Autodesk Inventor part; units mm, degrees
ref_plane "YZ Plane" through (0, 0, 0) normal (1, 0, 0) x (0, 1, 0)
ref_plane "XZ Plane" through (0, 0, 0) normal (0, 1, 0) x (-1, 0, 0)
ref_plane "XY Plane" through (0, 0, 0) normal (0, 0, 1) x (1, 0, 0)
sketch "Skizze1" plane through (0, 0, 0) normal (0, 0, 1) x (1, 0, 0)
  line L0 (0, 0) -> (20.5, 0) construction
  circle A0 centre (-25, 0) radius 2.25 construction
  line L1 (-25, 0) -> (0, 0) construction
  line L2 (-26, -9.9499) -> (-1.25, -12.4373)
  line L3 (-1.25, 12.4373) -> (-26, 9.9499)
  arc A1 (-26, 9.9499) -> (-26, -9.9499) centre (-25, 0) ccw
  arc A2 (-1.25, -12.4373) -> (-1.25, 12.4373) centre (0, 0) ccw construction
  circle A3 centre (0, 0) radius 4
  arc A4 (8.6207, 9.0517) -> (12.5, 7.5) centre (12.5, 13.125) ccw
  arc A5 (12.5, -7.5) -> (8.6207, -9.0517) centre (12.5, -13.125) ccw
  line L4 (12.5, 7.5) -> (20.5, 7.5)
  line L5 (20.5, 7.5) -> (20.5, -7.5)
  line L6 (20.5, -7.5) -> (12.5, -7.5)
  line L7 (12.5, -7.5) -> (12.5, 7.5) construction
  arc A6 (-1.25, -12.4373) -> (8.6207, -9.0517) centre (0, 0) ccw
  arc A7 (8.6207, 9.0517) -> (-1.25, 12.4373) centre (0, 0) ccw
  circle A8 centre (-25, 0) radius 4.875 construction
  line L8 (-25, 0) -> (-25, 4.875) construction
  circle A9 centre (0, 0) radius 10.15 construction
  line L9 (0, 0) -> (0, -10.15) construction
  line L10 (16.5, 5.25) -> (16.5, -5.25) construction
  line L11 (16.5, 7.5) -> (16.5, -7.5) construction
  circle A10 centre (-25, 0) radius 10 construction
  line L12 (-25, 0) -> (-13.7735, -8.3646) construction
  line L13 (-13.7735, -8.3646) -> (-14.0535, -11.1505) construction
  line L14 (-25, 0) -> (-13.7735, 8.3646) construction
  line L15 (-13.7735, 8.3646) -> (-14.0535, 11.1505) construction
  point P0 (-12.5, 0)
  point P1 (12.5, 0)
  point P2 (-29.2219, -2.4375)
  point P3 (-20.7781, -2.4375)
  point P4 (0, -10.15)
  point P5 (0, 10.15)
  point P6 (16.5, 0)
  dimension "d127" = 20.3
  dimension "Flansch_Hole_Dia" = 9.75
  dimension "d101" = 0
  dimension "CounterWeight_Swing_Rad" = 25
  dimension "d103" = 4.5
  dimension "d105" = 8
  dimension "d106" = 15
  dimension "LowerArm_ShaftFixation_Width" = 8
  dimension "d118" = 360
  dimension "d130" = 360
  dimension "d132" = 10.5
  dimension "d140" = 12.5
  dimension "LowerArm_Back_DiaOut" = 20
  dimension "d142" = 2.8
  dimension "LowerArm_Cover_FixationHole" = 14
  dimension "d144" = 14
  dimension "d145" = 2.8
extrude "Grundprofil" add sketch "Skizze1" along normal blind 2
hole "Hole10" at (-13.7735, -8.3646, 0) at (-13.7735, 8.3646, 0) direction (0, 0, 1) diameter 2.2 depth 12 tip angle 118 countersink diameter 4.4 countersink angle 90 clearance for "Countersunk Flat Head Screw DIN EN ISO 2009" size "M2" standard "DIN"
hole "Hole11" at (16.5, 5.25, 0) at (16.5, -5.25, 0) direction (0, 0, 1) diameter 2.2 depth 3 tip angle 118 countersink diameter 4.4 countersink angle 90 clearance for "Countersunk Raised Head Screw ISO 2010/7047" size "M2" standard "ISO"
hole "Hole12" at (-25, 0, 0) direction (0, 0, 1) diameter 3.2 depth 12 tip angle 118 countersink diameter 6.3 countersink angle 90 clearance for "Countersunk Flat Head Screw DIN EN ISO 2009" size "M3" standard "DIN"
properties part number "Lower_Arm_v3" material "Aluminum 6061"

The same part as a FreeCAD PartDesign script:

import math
import FreeCAD as App
import Part
import Sketcher

doc = App.newDocument("Part")
body = doc.addObject("PartDesign::Body", "Body")

# Sketch on XY plane
sketch1 = doc.addObject("Sketcher::SketchObject", "Sketch")
body.addObject(sketch1)
sketch1.AttachmentSupport = (doc.XY_Plane, [""])
sketch1.MapMode = "FlatFace"
sketch1.addGeometry(Part.ArcOfCircle(Part.Circle(App.Vector(-25, 0, 0), App.Vector(0, 0, 1), 10.000026), math.radians(95.739156), math.radians(264.260844)), False)
sketch1.addGeometry(Part.LineSegment(App.Vector(-26, -9.9499, 0), App.Vector(-1.25, -12.4373, 0)), False)
sketch1.addGeometry(Part.ArcOfCircle(Part.Circle(App.Vector(0, 0, 0), App.Vector(0, 0, 1), 12.49999), math.radians(-95.73919), math.radians(-46.39707)), False)
sketch1.addGeometry(Part.ArcOfCircle(Part.Circle(App.Vector(12.5, -13.125, 0), App.Vector(0, 0, 1), 5.625), math.radians(90), math.radians(133.602573)), False)
sketch1.addGeometry(Part.LineSegment(App.Vector(12.5, -7.5, 0), App.Vector(20.5, -7.5, 0)), False)
sketch1.addGeometry(Part.LineSegment(App.Vector(20.5, -7.5, 0), App.Vector(20.5, 7.5, 0)), False)
sketch1.addGeometry(Part.LineSegment(App.Vector(20.5, 7.5, 0), App.Vector(12.5, 7.5, 0)), False)
sketch1.addGeometry(Part.ArcOfCircle(Part.Circle(App.Vector(12.5, 13.125, 0), App.Vector(0, 0, 1), 5.62501), math.radians(-133.602573), math.radians(-90)), False)
sketch1.addGeometry(Part.ArcOfCircle(Part.Circle(App.Vector(0, 0, 0), App.Vector(0, 0, 1), 12.499957), math.radians(46.39707), math.radians(95.73919)), False)
sketch1.addGeometry(Part.LineSegment(App.Vector(-1.25, 12.4373, 0), App.Vector(-26, 9.9499, 0)), False)
sketch1.addGeometry(Part.Circle(App.Vector(0, 0, 0), App.Vector(0, 0, 1), 4), False)
sketch1.addConstraint(Sketcher.Constraint("Tangent", 0, 2, 1, 1))
sketch1.addConstraint(Sketcher.Constraint("Tangent", 1, 2, 2, 1))
sketch1.addConstraint(Sketcher.Constraint("Tangent", 2, 2, 3, 2))
sketch1.addConstraint(Sketcher.Constraint("Tangent", 3, 1, 4, 1))
sketch1.addConstraint(Sketcher.Constraint("Coincident", 4, 2, 5, 1))
sketch1.addConstraint(Sketcher.Constraint("Coincident", 5, 2, 6, 1))
sketch1.addConstraint(Sketcher.Constraint("Tangent", 6, 2, 7, 2))
sketch1.addConstraint(Sketcher.Constraint("Tangent", 7, 1, 8, 1))
sketch1.addConstraint(Sketcher.Constraint("Tangent", 8, 2, 9, 1))
sketch1.addConstraint(Sketcher.Constraint("Tangent", 9, 2, 0, 1))
sketch1.addConstraint(Sketcher.Constraint("Horizontal", 4))
sketch1.addConstraint(Sketcher.Constraint("Vertical", 5))
sketch1.addConstraint(Sketcher.Constraint("Horizontal", 6))
sketch1.addConstraint(Sketcher.Constraint("Coincident", 2, 3, -1, 1))
sketch1.addConstraint(Sketcher.Constraint("Coincident", 8, 3, -1, 1))
sketch1.addConstraint(Sketcher.Constraint("Coincident", 10, 3, -1, 1))
sketch1.addConstraint(Sketcher.Constraint("Equal", 3, 7))
sketch1.addConstraint(Sketcher.Constraint("Equal", 2, 8))
sketch1.addConstraint(Sketcher.Constraint("PointOnObject", 0, 3, -1))
sketch1.addConstraint(Sketcher.Constraint("Vertical", 3, 3, 7, 3))
sketch1.addConstraint(Sketcher.Constraint("Diameter", 10, 8.0))
sketch1.addConstraint(Sketcher.Constraint("Radius", 0, 10.0))
sketch1.addConstraint(Sketcher.Constraint("Radius", 2, 12.5))
sketch1.addConstraint(Sketcher.Constraint("DistanceX", 4, 1, 4, 2, 8.0))
sketch1.addConstraint(Sketcher.Constraint("DistanceY", 5, 1, 5, 2, 15.0))
sketch1.addConstraint(Sketcher.Constraint("DistanceX", 0, 3, -1, 1, 25.0))
sketch1.addConstraint(Sketcher.Constraint("DistanceX", -1, 1, 3, 3, 12.5))
pad1 = doc.addObject("PartDesign::Pad", "Pad")
body.addObject(pad1)
pad1.Profile = sketch1
pad1.Length = 2

# Sketch on XY plane
sketch2 = doc.addObject("Sketcher::SketchObject", "Sketch001")
body.addObject(sketch2)
sketch2.AttachmentSupport = (doc.XY_Plane, [""])
sketch2.MapMode = "FlatFace"
sketch2.addGeometry(Part.Circle(App.Vector(-13.7735, -8.3646, 0), App.Vector(0, 0, 1), 1.1), False)
sketch2.addGeometry(Part.Circle(App.Vector(-13.7735, 8.3646, 0), App.Vector(0, 0, 1), 1.1), False)
sketch2.addConstraint(Sketcher.Constraint("Equal", 0, 1))
sketch2.addConstraint(Sketcher.Constraint("Symmetric", 0, 3, 1, 3, -1))
sketch2.addConstraint(Sketcher.Constraint("Diameter", 0, 2.2))
sketch2.addConstraint(Sketcher.Constraint("DistanceX", 0, 3, -1, 1, 13.7735))
sketch2.addConstraint(Sketcher.Constraint("DistanceY", 0, 3, -1, 1, 8.3646))
doc.recompute()
hole = doc.addObject("PartDesign::Hole", "Hole")
body.addObject(hole)
hole.Profile = sketch2
hole.ThreadType = "None"
hole.Diameter = 2.2
hole.DepthType = "Dimension"
hole.Depth = 12
hole.DrillPoint = "Angled"
hole.DrillPointAngle = 118
hole.HoleCutType = "Countersink"
hole.HoleCutDiameter = 4.4
hole.HoleCutCountersinkAngle = 90
hole.Reversed = True

# Sketch on XY plane
sketch3 = doc.addObject("Sketcher::SketchObject", "Sketch002")
body.addObject(sketch3)
sketch3.AttachmentSupport = (doc.XY_Plane, [""])
sketch3.MapMode = "FlatFace"
sketch3.addGeometry(Part.Circle(App.Vector(16.5, 5.25, 0), App.Vector(0, 0, 1), 1.1), False)
sketch3.addGeometry(Part.Circle(App.Vector(16.5, -5.25, 0), App.Vector(0, 0, 1), 1.1), False)
sketch3.addConstraint(Sketcher.Constraint("Equal", 0, 1))
sketch3.addConstraint(Sketcher.Constraint("Symmetric", 0, 3, 1, 3, -1))
sketch3.addConstraint(Sketcher.Constraint("Diameter", 0, 2.2))
sketch3.addConstraint(Sketcher.Constraint("DistanceX", -1, 1, 0, 3, 16.5))
sketch3.addConstraint(Sketcher.Constraint("DistanceY", 1, 3, 0, 3, 10.5))
doc.recompute()
hole2 = doc.addObject("PartDesign::Hole", "Hole001")
body.addObject(hole2)
hole2.Profile = sketch3
hole2.ThreadType = "None"
hole2.Diameter = 2.2
hole2.DepthType = "Dimension"
hole2.Depth = 3
hole2.DrillPoint = "Angled"
hole2.DrillPointAngle = 118
hole2.HoleCutType = "Countersink"
hole2.HoleCutDiameter = 4.4
hole2.HoleCutCountersinkAngle = 90
hole2.Reversed = True

# Sketch on XY plane
sketch4 = doc.addObject("Sketcher::SketchObject", "Sketch003")
body.addObject(sketch4)
sketch4.AttachmentSupport = (doc.XY_Plane, [""])
sketch4.MapMode = "FlatFace"
sketch4.addGeometry(Part.Circle(App.Vector(-25, 0, 0), App.Vector(0, 0, 1), 1.6), False)
sketch4.addConstraint(Sketcher.Constraint("PointOnObject", 0, 3, -1))
sketch4.addConstraint(Sketcher.Constraint("Diameter", 0, 3.2))
sketch4.addConstraint(Sketcher.Constraint("DistanceX", 0, 3, -1, 1, 25.0))
doc.recompute()
hole3 = doc.addObject("PartDesign::Hole", "Hole002")
body.addObject(hole3)
hole3.Profile = sketch4
hole3.ThreadType = "None"
hole3.Diameter = 3.2
hole3.DepthType = "Dimension"
hole3.Depth = 12
hole3.DrillPoint = "Angled"
hole3.DrillPointAngle = 118
hole3.HoleCutType = "Countersink"
hole3.HoleCutDiameter = 6.3
hole3.HoleCutCountersinkAngle = 90
hole3.Reversed = True

doc.recompute()
